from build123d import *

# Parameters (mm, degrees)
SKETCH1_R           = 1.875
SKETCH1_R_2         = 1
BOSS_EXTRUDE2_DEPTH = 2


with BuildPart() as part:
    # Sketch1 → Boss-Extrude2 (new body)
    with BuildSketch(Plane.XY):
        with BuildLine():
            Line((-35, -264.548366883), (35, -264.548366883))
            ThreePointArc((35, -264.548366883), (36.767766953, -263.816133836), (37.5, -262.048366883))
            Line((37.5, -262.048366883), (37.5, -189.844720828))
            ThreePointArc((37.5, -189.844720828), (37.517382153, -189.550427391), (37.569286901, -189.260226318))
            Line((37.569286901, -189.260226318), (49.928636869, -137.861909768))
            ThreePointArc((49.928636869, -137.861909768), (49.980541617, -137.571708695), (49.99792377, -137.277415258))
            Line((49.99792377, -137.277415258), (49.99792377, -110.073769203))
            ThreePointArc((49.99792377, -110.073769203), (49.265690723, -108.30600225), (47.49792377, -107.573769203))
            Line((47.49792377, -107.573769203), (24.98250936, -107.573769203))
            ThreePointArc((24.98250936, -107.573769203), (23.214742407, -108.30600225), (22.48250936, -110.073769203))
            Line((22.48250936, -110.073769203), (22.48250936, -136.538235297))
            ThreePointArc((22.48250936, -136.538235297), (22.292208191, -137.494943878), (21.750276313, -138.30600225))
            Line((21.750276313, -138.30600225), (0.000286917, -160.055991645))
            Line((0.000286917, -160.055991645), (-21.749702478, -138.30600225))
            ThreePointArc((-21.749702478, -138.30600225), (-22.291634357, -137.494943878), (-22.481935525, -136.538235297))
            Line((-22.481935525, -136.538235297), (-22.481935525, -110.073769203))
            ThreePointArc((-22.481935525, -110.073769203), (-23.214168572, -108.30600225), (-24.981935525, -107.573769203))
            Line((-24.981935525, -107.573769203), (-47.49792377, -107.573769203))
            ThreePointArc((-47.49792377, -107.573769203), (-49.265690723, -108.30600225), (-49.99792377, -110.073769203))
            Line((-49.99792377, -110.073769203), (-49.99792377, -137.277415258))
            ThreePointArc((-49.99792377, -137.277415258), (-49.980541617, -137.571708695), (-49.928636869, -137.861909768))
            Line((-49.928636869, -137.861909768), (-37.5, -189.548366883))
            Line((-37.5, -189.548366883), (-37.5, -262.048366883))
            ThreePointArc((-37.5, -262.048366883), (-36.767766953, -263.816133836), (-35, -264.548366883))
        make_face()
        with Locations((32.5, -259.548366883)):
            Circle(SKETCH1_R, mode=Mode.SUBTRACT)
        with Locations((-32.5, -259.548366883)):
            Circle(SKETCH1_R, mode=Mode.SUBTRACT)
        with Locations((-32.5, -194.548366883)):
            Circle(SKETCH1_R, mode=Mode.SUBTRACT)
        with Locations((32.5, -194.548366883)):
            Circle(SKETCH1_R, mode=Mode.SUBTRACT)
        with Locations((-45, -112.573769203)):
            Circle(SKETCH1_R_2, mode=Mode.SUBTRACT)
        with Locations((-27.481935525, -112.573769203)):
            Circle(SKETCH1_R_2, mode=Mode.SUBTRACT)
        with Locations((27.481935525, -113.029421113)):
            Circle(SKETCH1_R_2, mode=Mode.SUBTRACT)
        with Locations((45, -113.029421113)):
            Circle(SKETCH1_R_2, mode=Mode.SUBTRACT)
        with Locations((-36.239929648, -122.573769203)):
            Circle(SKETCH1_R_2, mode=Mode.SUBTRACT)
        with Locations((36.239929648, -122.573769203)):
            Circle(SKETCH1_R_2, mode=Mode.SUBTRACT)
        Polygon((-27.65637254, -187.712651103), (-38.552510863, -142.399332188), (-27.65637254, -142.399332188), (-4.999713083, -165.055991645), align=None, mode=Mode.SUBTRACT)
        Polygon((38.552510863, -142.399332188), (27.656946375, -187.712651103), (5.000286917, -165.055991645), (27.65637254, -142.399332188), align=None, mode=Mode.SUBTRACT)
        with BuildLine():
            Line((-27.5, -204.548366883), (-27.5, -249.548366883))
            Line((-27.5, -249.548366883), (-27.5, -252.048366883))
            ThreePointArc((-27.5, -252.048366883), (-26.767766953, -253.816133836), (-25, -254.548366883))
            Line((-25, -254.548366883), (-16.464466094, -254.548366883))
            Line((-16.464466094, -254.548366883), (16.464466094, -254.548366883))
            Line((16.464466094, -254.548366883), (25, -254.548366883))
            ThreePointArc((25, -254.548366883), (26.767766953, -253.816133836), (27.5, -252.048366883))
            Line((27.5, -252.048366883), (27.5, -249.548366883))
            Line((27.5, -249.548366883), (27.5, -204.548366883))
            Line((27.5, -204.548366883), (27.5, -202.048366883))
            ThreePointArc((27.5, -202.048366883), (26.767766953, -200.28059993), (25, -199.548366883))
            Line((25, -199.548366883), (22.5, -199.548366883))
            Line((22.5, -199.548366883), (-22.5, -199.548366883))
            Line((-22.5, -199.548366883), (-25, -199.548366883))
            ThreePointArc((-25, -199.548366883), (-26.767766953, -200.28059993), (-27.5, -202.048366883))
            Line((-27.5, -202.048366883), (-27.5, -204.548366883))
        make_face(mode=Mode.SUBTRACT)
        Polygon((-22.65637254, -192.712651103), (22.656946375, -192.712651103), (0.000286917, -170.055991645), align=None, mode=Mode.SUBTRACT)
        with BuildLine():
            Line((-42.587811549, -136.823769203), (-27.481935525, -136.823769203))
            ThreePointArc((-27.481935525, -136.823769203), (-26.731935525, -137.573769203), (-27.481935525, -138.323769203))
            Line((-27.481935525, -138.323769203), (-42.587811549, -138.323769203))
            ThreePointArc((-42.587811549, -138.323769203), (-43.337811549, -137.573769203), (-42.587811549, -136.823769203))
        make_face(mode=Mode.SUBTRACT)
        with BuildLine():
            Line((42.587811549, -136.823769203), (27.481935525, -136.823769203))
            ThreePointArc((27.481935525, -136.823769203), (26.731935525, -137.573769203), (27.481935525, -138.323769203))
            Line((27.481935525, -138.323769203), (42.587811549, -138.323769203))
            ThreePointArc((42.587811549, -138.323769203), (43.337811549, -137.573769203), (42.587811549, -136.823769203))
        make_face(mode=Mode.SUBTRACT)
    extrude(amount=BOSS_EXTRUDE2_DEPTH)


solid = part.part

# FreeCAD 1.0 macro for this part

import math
import FreeCAD as App
import Part
import Sketcher

V = App.Vector


def add_polygon(sketch, points):
    """Adds a closed chain of lines whose ends are joined by coincident constraints."""
    first, n = sketch.GeometryCount, len(points)
    for a, b in zip(points, points[1:] + points[:1]):
        sketch.addGeometry(Part.LineSegment(App.Vector(*a, 0), App.Vector(*b, 0)), False)
    for i in range(n):
        sketch.addConstraint(Sketcher.Constraint("Coincident", first + i, 2, first + (i + 1) % n, 1))

doc = App.newDocument("Part")
params = doc.addObject("Spreadsheet::Sheet", "Params")
for row, (alias, value) in enumerate([
    ("sketch1_diameter", "2 mm"),
    ("sketch1_radius", "2.5 mm"),
    ("sketch1_diameter2", "3.75 mm"),
    ("sketch1_width", "70 mm"),
    ("sketch1_width2", "50 mm"),
    ("pad1_length", "2 mm"),
], start=1):
    params.set(f"A{row}", alias)
    params.set(f"B{row}", "=" + value)
    params.setAlias(f"B{row}", alias)

body = doc.addObject("PartDesign::Body", "Body")

# Sketch on XY plane
sketch1 = body.newObject("Sketcher::SketchObject", "Sketch")
sketch1.AttachmentSupport = (doc.getObject("XY_Plane"), [""])
sketch1.MapMode = "FlatFace"
sketch1.addGeometry(Part.LineSegment(V(-35, -264.5, 0), V(35, -264.5, 0)), False)  # 0
sketch1.addGeometry(Part.ArcOfCircle(Part.Circle(V(35, -262, 0), V(0, 0, 1), 2.5), math.radians(-90), math.radians(0)), False)  # 1
sketch1.addGeometry(Part.LineSegment(V(37.5, -262, 0), V(37.5, -189.8, 0)), False)  # 2
sketch1.addGeometry(Part.ArcOfCircle(Part.Circle(V(40, -189.8, 0), V(0, 0, 1), 2.5), math.radians(166.48), math.radians(180)), False)  # 3
sketch1.addGeometry(Part.LineSegment(V(37.6, -189.3, 0), V(49.9, -137.9, 0)), False)  # 4
sketch1.addGeometry(Part.ArcOfCircle(Part.Circle(V(47.5, -137.3, 0), V(0, 0, 1), 2.5), math.radians(-13.52), math.radians(0)), False)  # 5
sketch1.addGeometry(Part.LineSegment(V(50, -137.3, 0), V(50, -110.1, 0)), False)  # 6
sketch1.addGeometry(Part.ArcOfCircle(Part.Circle(V(47.5, -110.1, 0), V(0, 0, 1), 2.5), math.radians(0), math.radians(90)), False)  # 7
sketch1.addGeometry(Part.LineSegment(V(47.5, -107.6, 0), V(25, -107.6, 0)), False)  # 8
sketch1.addGeometry(Part.ArcOfCircle(Part.Circle(V(25, -110.1, 0), V(0, 0, 1), 2.5), math.radians(90), math.radians(180)), False)  # 9
sketch1.addGeometry(Part.LineSegment(V(22.5, -110.1, 0), V(22.5, -136.5, 0)), False)  # 10
sketch1.addGeometry(Part.ArcOfCircle(Part.Circle(V(20, -136.5, 0), V(0, 0, 1), 2.5), math.radians(-45), math.radians(0)), False)  # 11
sketch1.addGeometry(Part.LineSegment(V(21.8, -138.3, 0), V(0, -160.1, 0)), False)  # 12
sketch1.addGeometry(Part.LineSegment(V(0, -160.1, 0), V(-21.7, -138.3, 0)), False)  # 13
sketch1.addGeometry(Part.ArcOfCircle(Part.Circle(V(-20, -136.5, 0), V(0, 0, 1), 2.5), math.radians(180), math.radians(225)), False)  # 14
sketch1.addGeometry(Part.LineSegment(V(-22.5, -136.5, 0), V(-22.5, -110.1, 0)), False)  # 15
sketch1.addGeometry(Part.ArcOfCircle(Part.Circle(V(-25, -110.1, 0), V(0, 0, 1), 2.5), math.radians(0), math.radians(90)), False)  # 16
sketch1.addGeometry(Part.LineSegment(V(-25, -107.6, 0), V(-47.5, -107.6, 0)), False)  # 17
sketch1.addGeometry(Part.ArcOfCircle(Part.Circle(V(-47.5, -110.1, 0), V(0, 0, 1), 2.5), math.radians(90), math.radians(180)), False)  # 18
sketch1.addGeometry(Part.LineSegment(V(-50, -110.1, 0), V(-50, -137.3, 0)), False)  # 19
sketch1.addGeometry(Part.ArcOfCircle(Part.Circle(V(-47.5, -137.3, 0), V(0, 0, 1), 2.5), math.radians(180), math.radians(193.52)), False)  # 20
sketch1.addGeometry(Part.LineSegment(V(-49.9, -137.9, 0), V(-37.5, -189.5, 0)), False)  # 21
sketch1.addGeometry(Part.LineSegment(V(-37.5, -189.5, 0), V(-37.5, -262, 0)), False)  # 22
sketch1.addGeometry(Part.ArcOfCircle(Part.Circle(V(-35, -262, 0), V(0, 0, 1), 2.5), math.radians(180), math.radians(270)), False)  # 23
sketch1.addGeometry(Part.Circle(V(-32.5, -259.5, 0), V(0, 0, 1), 1.9), False)  # 24
sketch1.addGeometry(Part.Circle(V(-32.5, -194.5, 0), V(0, 0, 1), 1.9), False)  # 25
sketch1.addGeometry(Part.ArcOfCircle(Part.Circle(V(-25, -252, 0), V(0, 0, 1), 2.5), math.radians(180), math.radians(270)), False)  # 26
sketch1.addGeometry(Part.LineSegment(V(-27.5, -252, 0), V(-27.5, -202, 0)), False)  # 27
sketch1.addGeometry(Part.ArcOfCircle(Part.Circle(V(-25, -202, 0), V(0, 0, 1), 2.5), math.radians(90), math.radians(180)), False)  # 28
sketch1.addGeometry(Part.LineSegment(V(-25, -199.5, 0), V(25, -199.5, 0)), False)  # 29
sketch1.addGeometry(Part.ArcOfCircle(Part.Circle(V(25, -202, 0), V(0, 0, 1), 2.5), math.radians(0), math.radians(90)), False)  # 30
sketch1.addGeometry(Part.LineSegment(V(27.5, -202, 0), V(27.5, -252, 0)), False)  # 31
sketch1.addGeometry(Part.ArcOfCircle(Part.Circle(V(25, -252, 0), V(0, 0, 1), 2.5), math.radians(-90), math.radians(0)), False)  # 32
sketch1.addGeometry(Part.LineSegment(V(25, -254.5, 0), V(-25, -254.5, 0)), False)  # 33
sketch1.addGeometry(Part.Circle(V(32.5, -259.5, 0), V(0, 0, 1), 1.9), False)  # 34
sketch1.addGeometry(Part.Circle(V(32.5, -194.5, 0), V(0, 0, 1), 1.9), False)  # 35
add_polygon(sketch1, [(-5, -165.1), (-27.7, -187.7), (-38.6, -142.4), (-27.7, -142.4)])  # lines 36-39
sketch1.addGeometry(Part.ArcOfCircle(Part.Circle(V(-42.6, -137.6, 0), V(0, 0, 1), 0.8), math.radians(90), math.radians(270)), False)  # 40
sketch1.addGeometry(Part.LineSegment(V(-42.6, -136.8, 0), V(-27.5, -136.8, 0)), False)  # 41
sketch1.addGeometry(Part.ArcOfCircle(Part.Circle(V(-27.5, -137.6, 0), V(0, 0, 1), 0.8), math.radians(-90), math.radians(90)), False)  # 42
sketch1.addGeometry(Part.LineSegment(V(-27.5, -138.3, 0), V(-42.6, -138.3, 0)), False)  # 43
sketch1.addGeometry(Part.Circle(V(-36.2, -122.6, 0), V(0, 0, 1), 1), False)  # 44
sketch1.addGeometry(Part.Circle(V(-45, -112.6, 0), V(0, 0, 1), 1), False)  # 45
sketch1.addGeometry(Part.Circle(V(-27.5, -112.6, 0), V(0, 0, 1), 1), False)  # 46
add_polygon(sketch1, [(22.7, -192.7), (-22.7, -192.7), (0, -170.1)])  # lines 47-49
add_polygon(sketch1, [(27.7, -142.4), (38.6, -142.4), (27.7, -187.7), (5, -165.1)])  # lines 50-53
sketch1.addGeometry(Part.LineSegment(V(27.5, -136.8, 0), V(42.6, -136.8, 0)), False)  # 54
sketch1.addGeometry(Part.ArcOfCircle(Part.Circle(V(42.6, -137.6, 0), V(0, 0, 1), 0.8), math.radians(-90), math.radians(90)), False)  # 55
sketch1.addGeometry(Part.LineSegment(V(42.6, -138.3, 0), V(27.5, -138.3, 0)), False)  # 56
sketch1.addGeometry(Part.ArcOfCircle(Part.Circle(V(27.5, -137.6, 0), V(0, 0, 1), 0.8), math.radians(90), math.radians(270)), False)  # 57
sketch1.addGeometry(Part.Circle(V(27.5, -113, 0), V(0, 0, 1), 1), False)  # 58
sketch1.addGeometry(Part.Circle(V(36.2, -122.6, 0), V(0, 0, 1), 1), False)  # 59
sketch1.addGeometry(Part.Circle(V(45, -113, 0), V(0, 0, 1), 1), False)  # 60
sketch1.addConstraint(Sketcher.Constraint("Tangent", 0, 2, 1, 1))
sketch1.addConstraint(Sketcher.Constraint("Tangent", 1, 2, 2, 1))
sketch1.addConstraint(Sketcher.Constraint("Tangent", 2, 2, 3, 2))
sketch1.addConstraint(Sketcher.Constraint("Tangent", 3, 1, 4, 1))
sketch1.addConstraint(Sketcher.Constraint("Tangent", 4, 2, 5, 1))
sketch1.addConstraint(Sketcher.Constraint("Tangent", 5, 2, 6, 1))
sketch1.addConstraint(Sketcher.Constraint("Tangent", 6, 2, 7, 1))
sketch1.addConstraint(Sketcher.Constraint("Tangent", 7, 2, 8, 1))
sketch1.addConstraint(Sketcher.Constraint("Tangent", 8, 2, 9, 1))
sketch1.addConstraint(Sketcher.Constraint("Tangent", 9, 2, 10, 1))
sketch1.addConstraint(Sketcher.Constraint("Tangent", 10, 2, 11, 2))
sketch1.addConstraint(Sketcher.Constraint("Tangent", 11, 1, 12, 1))
sketch1.addConstraint(Sketcher.Constraint("Coincident", 12, 2, 13, 1))
sketch1.addConstraint(Sketcher.Constraint("Tangent", 13, 2, 14, 2))
sketch1.addConstraint(Sketcher.Constraint("Tangent", 14, 1, 15, 1))
sketch1.addConstraint(Sketcher.Constraint("Tangent", 15, 2, 16, 1))
sketch1.addConstraint(Sketcher.Constraint("Tangent", 16, 2, 17, 1))
sketch1.addConstraint(Sketcher.Constraint("Tangent", 17, 2, 18, 1))
sketch1.addConstraint(Sketcher.Constraint("Tangent", 18, 2, 19, 1))
sketch1.addConstraint(Sketcher.Constraint("Tangent", 19, 2, 20, 1))
sketch1.addConstraint(Sketcher.Constraint("Tangent", 20, 2, 21, 1))
sketch1.addConstraint(Sketcher.Constraint("Coincident", 21, 2, 22, 1))
sketch1.addConstraint(Sketcher.Constraint("Tangent", 22, 2, 23, 1))
sketch1.addConstraint(Sketcher.Constraint("Tangent", 23, 2, 0, 1))
sketch1.addConstraint(Sketcher.Constraint("Tangent", 26, 1, 27, 1))
sketch1.addConstraint(Sketcher.Constraint("Tangent", 27, 2, 28, 2))
sketch1.addConstraint(Sketcher.Constraint("Tangent", 28, 1, 29, 1))
sketch1.addConstraint(Sketcher.Constraint("Tangent", 29, 2, 30, 2))
sketch1.addConstraint(Sketcher.Constraint("Tangent", 30, 1, 31, 1))
sketch1.addConstraint(Sketcher.Constraint("Tangent", 31, 2, 32, 2))
sketch1.addConstraint(Sketcher.Constraint("Tangent", 32, 1, 33, 1))
sketch1.addConstraint(Sketcher.Constraint("Tangent", 33, 2, 26, 2))
sketch1.addConstraint(Sketcher.Constraint("Tangent", 40, 1, 41, 1))
sketch1.addConstraint(Sketcher.Constraint("Tangent", 41, 2, 42, 2))
sketch1.addConstraint(Sketcher.Constraint("Tangent", 42, 1, 43, 1))
sketch1.addConstraint(Sketcher.Constraint("Tangent", 43, 2, 40, 2))
sketch1.addConstraint(Sketcher.Constraint("Tangent", 54, 2, 55, 2))
sketch1.addConstraint(Sketcher.Constraint("Tangent", 55, 1, 56, 1))
sketch1.addConstraint(Sketcher.Constraint("Tangent", 56, 2, 57, 2))
sketch1.addConstraint(Sketcher.Constraint("Tangent", 57, 1, 54, 1))
sketch1.addConstraint(Sketcher.Constraint("Horizontal", 0))
sketch1.addConstraint(Sketcher.Constraint("Vertical", 2))
sketch1.addConstraint(Sketcher.Constraint("Vertical", 6))
sketch1.addConstraint(Sketcher.Constraint("Horizontal", 8))
sketch1.addConstraint(Sketcher.Constraint("Vertical", 10))
sketch1.addConstraint(Sketcher.Constraint("Vertical", 15))
sketch1.addConstraint(Sketcher.Constraint("Horizontal", 17))
sketch1.addConstraint(Sketcher.Constraint("Vertical", 19))
sketch1.addConstraint(Sketcher.Constraint("Vertical", 22))
sketch1.addConstraint(Sketcher.Constraint("Vertical", 27))
sketch1.addConstraint(Sketcher.Constraint("Horizontal", 29))
sketch1.addConstraint(Sketcher.Constraint("Vertical", 31))
sketch1.addConstraint(Sketcher.Constraint("Horizontal", 33))
sketch1.addConstraint(Sketcher.Constraint("Horizontal", 38))
sketch1.addConstraint(Sketcher.Constraint("Horizontal", 41))
sketch1.addConstraint(Sketcher.Constraint("Horizontal", 43))
sketch1.addConstraint(Sketcher.Constraint("Horizontal", 47))
sketch1.addConstraint(Sketcher.Constraint("Horizontal", 50))
sketch1.addConstraint(Sketcher.Constraint("Horizontal", 54))
sketch1.addConstraint(Sketcher.Constraint("Horizontal", 56))
sketch1.addConstraint(Sketcher.Constraint("Equal", 1, 3))
sketch1.addConstraint(Sketcher.Constraint("Equal", 3, 5))
sketch1.addConstraint(Sketcher.Constraint("Equal", 5, 7))
sketch1.addConstraint(Sketcher.Constraint("Equal", 7, 9))
sketch1.addConstraint(Sketcher.Constraint("Equal", 9, 11))
sketch1.addConstraint(Sketcher.Constraint("Equal", 11, 14))
sketch1.addConstraint(Sketcher.Constraint("Equal", 14, 16))
sketch1.addConstraint(Sketcher.Constraint("Equal", 16, 18))
sketch1.addConstraint(Sketcher.Constraint("Equal", 18, 20))
sketch1.addConstraint(Sketcher.Constraint("Equal", 20, 23))
sketch1.addConstraint(Sketcher.Constraint("Equal", 24, 25))
sketch1.addConstraint(Sketcher.Constraint("Equal", 23, 26))
sketch1.addConstraint(Sketcher.Constraint("Equal", 26, 28))
sketch1.addConstraint(Sketcher.Constraint("Equal", 28, 30))
sketch1.addConstraint(Sketcher.Constraint("Equal", 30, 32))
sketch1.addConstraint(Sketcher.Constraint("Equal", 25, 34))
sketch1.addConstraint(Sketcher.Constraint("Equal", 34, 35))
sketch1.addConstraint(Sketcher.Constraint("Equal", 44, 45))
sketch1.addConstraint(Sketcher.Constraint("Equal", 45, 46))
sketch1.addConstraint(Sketcher.Constraint("Equal", 42, 55))
sketch1.addConstraint(Sketcher.Constraint("Equal", 46, 58))
sketch1.addConstraint(Sketcher.Constraint("Equal", 58, 59))
sketch1.addConstraint(Sketcher.Constraint("Equal", 59, 60))
sketch1.addConstraint(Sketcher.Constraint("Symmetric", 7, 3, 18, 3, -2))
sketch1.addConstraint(Sketcher.Constraint("Symmetric", 24, 3, 34, 3, -2))
sketch1.addConstraint(Sketcher.Constraint("Symmetric", 25, 3, 35, 3, -2))
sketch1.addConstraint(Sketcher.Constraint("Symmetric", 40, 3, 55, 3, -2))
sketch1.addConstraint(Sketcher.Constraint("Symmetric", 44, 3, 59, 3, -2))
sketch1.addConstraint(Sketcher.Constraint("Symmetric", 4, 2, 20, 2, -2))
sketch1.addConstraint(Sketcher.Constraint("Symmetric", 37, 2, 50, 2, -2))
sketch1.addConstraint(Sketcher.Constraint("Perpendicular", 12, 13))
sketch1.addConstraint(Sketcher.Constraint("Perpendicular", 13, 36))
sketch1.addConstraint(Sketcher.Constraint("Parallel", 21, 37))
sketch1.addConstraint(Sketcher.Constraint("Perpendicular", 36, 39))
sketch1.addConstraint(Sketcher.Constraint("Perpendicular", 39, 48))
sketch1.addConstraint(Sketcher.Constraint("Perpendicular", 48, 49))
sketch1.addConstraint(Sketcher.Constraint("Parallel", 49, 52))
sketch1.addConstraint(Sketcher.Constraint("Horizontal", 11, 3, 14, 3))
sketch1.addConstraint(Sketcher.Constraint("Horizontal", 45, 3, 46, 3))
sketch1.addConstraint(Sketcher.Constraint("Horizontal", 58, 3, 60, 3))
sketch1.addConstraint(Sketcher.Constraint("Horizontal", 11, 1, 13, 2))
sketch1.addConstraint(Sketcher.Constraint("Horizontal", 36, 2, 51, 2))
sketch1.addConstraint(Sketcher.Constraint("Horizontal", 39, 2, 52, 2))
sketch1.addConstraint(Sketcher.Constraint("Vertical", 24, 3, 25, 3))
sketch1.addConstraint(Sketcher.Constraint("Vertical", 42, 3, 46, 3))
sketch1.addConstraint(Sketcher.Constraint("Vertical", 57, 3, 58, 3))
sketch1.addConstraint(Sketcher.Constraint("Vertical", 36, 2, 38, 2))
sketch1.addConstraint(Sketcher.Constraint("Vertical", 12, 2, 48, 2))
sketch1.addConstraint(Sketcher.Constraint("Equal", 38, 50))
sketch1.addConstraint(Sketcher.Constraint("Equal", 43, 54))
sketch1.addConstraint(Sketcher.Constraint("Equal", 33, 27))
sketch1.addConstraint(Sketcher.Constraint("Equal", 39, 48))
sketch1.addConstraint(Sketcher.Constraint("Diameter", 44, 2.0))
sketch1.addConstraint(Sketcher.Constraint("Radius", 1, 2.5))
sketch1.addConstraint(Sketcher.Constraint("Diameter", 24, 3.75))
sketch1.addConstraint(Sketcher.Constraint("DistanceX", 0, 1, 0, 2, 70.0))
sketch1.addConstraint(Sketcher.Constraint("DistanceX", 29, 1, 29, 2, 50.0))
sketch1.addConstraint(Sketcher.Constraint("Radius", 40, 0.75))
sketch1.addConstraint(Sketcher.Constraint("DistanceY", 22, 2, 22, 1, 72.5))
sketch1.addConstraint(Sketcher.Constraint("DistanceX", -1, 1, 1, 3, 35.0))
sketch1.addConstraint(Sketcher.Constraint("DistanceX", 26, 3, -1, 1, 25.0))
sketch1.addConstraint(Sketcher.Constraint("DistanceX", 45, 3, -1, 1, 45.0))
sketch1.addConstraint(Sketcher.Constraint("DistanceX", -1, 1, 60, 3, 45.0))
sketch1.addConstraint(Sketcher.Constraint("DistanceX", 24, 3, -1, 1, 32.5))
sketch1.addConstraint(Sketcher.Constraint("DistanceX", 17, 2, 17, 1, 22.515988))
sketch1.addConstraint(Sketcher.Constraint("DistanceX", 38, 1, 38, 2, 10.896138))
sketch1.addConstraint(Sketcher.Constraint("DistanceX", 47, 2, 47, 1, 45.313319))
sketch1.addConstraint(Sketcher.Constraint("Distance", 12, 30.75913))
sketch1.addConstraint(Sketcher.Constraint("Distance", 51, 46.60483))
sketch1.addConstraint(Sketcher.Constraint("DistanceX", 8, 2, 8, 1, 22.515414))
sketch1.addConstraint(Sketcher.Constraint("DistanceX", 41, 1, 41, 2, 15.105876))
sketch1.addConstraint(Sketcher.Constraint("DistanceY", 6, 1, 6, 2, 27.203646))
sketch1.addConstraint(Sketcher.Constraint("DistanceY", 10, 2, 10, 1, 26.464466))
sketch1.addConstraint(Sketcher.Constraint("DistanceY", 3, 3, -1, 1, 189.844721))
sketch1.addConstraint(Sketcher.Constraint("DistanceX", 40, 3, -1, 1, 42.587812))
sketch1.addConstraint(Sketcher.Constraint("DistanceY", 40, 3, -1, 1, 137.573769))
sketch1.addConstraint(Sketcher.Constraint("DistanceX", 44, 3, -1, 1, 36.23993))
sketch1.addConstraint(Sketcher.Constraint("DistanceY", 44, 3, -1, 1, 122.573769))
sketch1.addConstraint(Sketcher.Constraint("DistanceY", 45, 3, -1, 1, 112.573769))
sketch1.addConstraint(Sketcher.Constraint("DistanceY", 58, 3, -1, 1, 113.029421))
sketch1.addConstraint(Sketcher.Constraint("DistanceY", 36, 2, -1, 1, 187.712651))
sketch1.addConstraint(Sketcher.Constraint("DistanceX", 37, 2, -1, 1, 38.552511))
sketch1.addConstraint(Sketcher.Constraint("DistanceY", 47, 2, -1, 1, 192.712651))
sketch1.addConstraint(Sketcher.Constraint("DistanceY", 24, 3, -1, 1, 259.548367))
sketch1.addConstraint(Sketcher.Constraint("DistanceY", 25, 3, -1, 1, 194.548367))
sketch1.addConstraint(Sketcher.Constraint("DistanceY", 26, 3, -1, 1, 252.048367))
sketch1.setExpression("Constraints[123]", "Params.sketch1_diameter")
sketch1.setExpression("Constraints[124]", "Params.sketch1_radius")
sketch1.setExpression("Constraints[125]", "Params.sketch1_diameter2")
sketch1.setExpression("Constraints[126]", "Params.sketch1_width")
sketch1.setExpression("Constraints[127]", "Params.sketch1_width2")
pad1 = body.newObject("PartDesign::Pad", "Pad")
pad1.Profile = sketch1
pad1.setExpression("Length", "Params.pad1_length")

doc.recompute()
